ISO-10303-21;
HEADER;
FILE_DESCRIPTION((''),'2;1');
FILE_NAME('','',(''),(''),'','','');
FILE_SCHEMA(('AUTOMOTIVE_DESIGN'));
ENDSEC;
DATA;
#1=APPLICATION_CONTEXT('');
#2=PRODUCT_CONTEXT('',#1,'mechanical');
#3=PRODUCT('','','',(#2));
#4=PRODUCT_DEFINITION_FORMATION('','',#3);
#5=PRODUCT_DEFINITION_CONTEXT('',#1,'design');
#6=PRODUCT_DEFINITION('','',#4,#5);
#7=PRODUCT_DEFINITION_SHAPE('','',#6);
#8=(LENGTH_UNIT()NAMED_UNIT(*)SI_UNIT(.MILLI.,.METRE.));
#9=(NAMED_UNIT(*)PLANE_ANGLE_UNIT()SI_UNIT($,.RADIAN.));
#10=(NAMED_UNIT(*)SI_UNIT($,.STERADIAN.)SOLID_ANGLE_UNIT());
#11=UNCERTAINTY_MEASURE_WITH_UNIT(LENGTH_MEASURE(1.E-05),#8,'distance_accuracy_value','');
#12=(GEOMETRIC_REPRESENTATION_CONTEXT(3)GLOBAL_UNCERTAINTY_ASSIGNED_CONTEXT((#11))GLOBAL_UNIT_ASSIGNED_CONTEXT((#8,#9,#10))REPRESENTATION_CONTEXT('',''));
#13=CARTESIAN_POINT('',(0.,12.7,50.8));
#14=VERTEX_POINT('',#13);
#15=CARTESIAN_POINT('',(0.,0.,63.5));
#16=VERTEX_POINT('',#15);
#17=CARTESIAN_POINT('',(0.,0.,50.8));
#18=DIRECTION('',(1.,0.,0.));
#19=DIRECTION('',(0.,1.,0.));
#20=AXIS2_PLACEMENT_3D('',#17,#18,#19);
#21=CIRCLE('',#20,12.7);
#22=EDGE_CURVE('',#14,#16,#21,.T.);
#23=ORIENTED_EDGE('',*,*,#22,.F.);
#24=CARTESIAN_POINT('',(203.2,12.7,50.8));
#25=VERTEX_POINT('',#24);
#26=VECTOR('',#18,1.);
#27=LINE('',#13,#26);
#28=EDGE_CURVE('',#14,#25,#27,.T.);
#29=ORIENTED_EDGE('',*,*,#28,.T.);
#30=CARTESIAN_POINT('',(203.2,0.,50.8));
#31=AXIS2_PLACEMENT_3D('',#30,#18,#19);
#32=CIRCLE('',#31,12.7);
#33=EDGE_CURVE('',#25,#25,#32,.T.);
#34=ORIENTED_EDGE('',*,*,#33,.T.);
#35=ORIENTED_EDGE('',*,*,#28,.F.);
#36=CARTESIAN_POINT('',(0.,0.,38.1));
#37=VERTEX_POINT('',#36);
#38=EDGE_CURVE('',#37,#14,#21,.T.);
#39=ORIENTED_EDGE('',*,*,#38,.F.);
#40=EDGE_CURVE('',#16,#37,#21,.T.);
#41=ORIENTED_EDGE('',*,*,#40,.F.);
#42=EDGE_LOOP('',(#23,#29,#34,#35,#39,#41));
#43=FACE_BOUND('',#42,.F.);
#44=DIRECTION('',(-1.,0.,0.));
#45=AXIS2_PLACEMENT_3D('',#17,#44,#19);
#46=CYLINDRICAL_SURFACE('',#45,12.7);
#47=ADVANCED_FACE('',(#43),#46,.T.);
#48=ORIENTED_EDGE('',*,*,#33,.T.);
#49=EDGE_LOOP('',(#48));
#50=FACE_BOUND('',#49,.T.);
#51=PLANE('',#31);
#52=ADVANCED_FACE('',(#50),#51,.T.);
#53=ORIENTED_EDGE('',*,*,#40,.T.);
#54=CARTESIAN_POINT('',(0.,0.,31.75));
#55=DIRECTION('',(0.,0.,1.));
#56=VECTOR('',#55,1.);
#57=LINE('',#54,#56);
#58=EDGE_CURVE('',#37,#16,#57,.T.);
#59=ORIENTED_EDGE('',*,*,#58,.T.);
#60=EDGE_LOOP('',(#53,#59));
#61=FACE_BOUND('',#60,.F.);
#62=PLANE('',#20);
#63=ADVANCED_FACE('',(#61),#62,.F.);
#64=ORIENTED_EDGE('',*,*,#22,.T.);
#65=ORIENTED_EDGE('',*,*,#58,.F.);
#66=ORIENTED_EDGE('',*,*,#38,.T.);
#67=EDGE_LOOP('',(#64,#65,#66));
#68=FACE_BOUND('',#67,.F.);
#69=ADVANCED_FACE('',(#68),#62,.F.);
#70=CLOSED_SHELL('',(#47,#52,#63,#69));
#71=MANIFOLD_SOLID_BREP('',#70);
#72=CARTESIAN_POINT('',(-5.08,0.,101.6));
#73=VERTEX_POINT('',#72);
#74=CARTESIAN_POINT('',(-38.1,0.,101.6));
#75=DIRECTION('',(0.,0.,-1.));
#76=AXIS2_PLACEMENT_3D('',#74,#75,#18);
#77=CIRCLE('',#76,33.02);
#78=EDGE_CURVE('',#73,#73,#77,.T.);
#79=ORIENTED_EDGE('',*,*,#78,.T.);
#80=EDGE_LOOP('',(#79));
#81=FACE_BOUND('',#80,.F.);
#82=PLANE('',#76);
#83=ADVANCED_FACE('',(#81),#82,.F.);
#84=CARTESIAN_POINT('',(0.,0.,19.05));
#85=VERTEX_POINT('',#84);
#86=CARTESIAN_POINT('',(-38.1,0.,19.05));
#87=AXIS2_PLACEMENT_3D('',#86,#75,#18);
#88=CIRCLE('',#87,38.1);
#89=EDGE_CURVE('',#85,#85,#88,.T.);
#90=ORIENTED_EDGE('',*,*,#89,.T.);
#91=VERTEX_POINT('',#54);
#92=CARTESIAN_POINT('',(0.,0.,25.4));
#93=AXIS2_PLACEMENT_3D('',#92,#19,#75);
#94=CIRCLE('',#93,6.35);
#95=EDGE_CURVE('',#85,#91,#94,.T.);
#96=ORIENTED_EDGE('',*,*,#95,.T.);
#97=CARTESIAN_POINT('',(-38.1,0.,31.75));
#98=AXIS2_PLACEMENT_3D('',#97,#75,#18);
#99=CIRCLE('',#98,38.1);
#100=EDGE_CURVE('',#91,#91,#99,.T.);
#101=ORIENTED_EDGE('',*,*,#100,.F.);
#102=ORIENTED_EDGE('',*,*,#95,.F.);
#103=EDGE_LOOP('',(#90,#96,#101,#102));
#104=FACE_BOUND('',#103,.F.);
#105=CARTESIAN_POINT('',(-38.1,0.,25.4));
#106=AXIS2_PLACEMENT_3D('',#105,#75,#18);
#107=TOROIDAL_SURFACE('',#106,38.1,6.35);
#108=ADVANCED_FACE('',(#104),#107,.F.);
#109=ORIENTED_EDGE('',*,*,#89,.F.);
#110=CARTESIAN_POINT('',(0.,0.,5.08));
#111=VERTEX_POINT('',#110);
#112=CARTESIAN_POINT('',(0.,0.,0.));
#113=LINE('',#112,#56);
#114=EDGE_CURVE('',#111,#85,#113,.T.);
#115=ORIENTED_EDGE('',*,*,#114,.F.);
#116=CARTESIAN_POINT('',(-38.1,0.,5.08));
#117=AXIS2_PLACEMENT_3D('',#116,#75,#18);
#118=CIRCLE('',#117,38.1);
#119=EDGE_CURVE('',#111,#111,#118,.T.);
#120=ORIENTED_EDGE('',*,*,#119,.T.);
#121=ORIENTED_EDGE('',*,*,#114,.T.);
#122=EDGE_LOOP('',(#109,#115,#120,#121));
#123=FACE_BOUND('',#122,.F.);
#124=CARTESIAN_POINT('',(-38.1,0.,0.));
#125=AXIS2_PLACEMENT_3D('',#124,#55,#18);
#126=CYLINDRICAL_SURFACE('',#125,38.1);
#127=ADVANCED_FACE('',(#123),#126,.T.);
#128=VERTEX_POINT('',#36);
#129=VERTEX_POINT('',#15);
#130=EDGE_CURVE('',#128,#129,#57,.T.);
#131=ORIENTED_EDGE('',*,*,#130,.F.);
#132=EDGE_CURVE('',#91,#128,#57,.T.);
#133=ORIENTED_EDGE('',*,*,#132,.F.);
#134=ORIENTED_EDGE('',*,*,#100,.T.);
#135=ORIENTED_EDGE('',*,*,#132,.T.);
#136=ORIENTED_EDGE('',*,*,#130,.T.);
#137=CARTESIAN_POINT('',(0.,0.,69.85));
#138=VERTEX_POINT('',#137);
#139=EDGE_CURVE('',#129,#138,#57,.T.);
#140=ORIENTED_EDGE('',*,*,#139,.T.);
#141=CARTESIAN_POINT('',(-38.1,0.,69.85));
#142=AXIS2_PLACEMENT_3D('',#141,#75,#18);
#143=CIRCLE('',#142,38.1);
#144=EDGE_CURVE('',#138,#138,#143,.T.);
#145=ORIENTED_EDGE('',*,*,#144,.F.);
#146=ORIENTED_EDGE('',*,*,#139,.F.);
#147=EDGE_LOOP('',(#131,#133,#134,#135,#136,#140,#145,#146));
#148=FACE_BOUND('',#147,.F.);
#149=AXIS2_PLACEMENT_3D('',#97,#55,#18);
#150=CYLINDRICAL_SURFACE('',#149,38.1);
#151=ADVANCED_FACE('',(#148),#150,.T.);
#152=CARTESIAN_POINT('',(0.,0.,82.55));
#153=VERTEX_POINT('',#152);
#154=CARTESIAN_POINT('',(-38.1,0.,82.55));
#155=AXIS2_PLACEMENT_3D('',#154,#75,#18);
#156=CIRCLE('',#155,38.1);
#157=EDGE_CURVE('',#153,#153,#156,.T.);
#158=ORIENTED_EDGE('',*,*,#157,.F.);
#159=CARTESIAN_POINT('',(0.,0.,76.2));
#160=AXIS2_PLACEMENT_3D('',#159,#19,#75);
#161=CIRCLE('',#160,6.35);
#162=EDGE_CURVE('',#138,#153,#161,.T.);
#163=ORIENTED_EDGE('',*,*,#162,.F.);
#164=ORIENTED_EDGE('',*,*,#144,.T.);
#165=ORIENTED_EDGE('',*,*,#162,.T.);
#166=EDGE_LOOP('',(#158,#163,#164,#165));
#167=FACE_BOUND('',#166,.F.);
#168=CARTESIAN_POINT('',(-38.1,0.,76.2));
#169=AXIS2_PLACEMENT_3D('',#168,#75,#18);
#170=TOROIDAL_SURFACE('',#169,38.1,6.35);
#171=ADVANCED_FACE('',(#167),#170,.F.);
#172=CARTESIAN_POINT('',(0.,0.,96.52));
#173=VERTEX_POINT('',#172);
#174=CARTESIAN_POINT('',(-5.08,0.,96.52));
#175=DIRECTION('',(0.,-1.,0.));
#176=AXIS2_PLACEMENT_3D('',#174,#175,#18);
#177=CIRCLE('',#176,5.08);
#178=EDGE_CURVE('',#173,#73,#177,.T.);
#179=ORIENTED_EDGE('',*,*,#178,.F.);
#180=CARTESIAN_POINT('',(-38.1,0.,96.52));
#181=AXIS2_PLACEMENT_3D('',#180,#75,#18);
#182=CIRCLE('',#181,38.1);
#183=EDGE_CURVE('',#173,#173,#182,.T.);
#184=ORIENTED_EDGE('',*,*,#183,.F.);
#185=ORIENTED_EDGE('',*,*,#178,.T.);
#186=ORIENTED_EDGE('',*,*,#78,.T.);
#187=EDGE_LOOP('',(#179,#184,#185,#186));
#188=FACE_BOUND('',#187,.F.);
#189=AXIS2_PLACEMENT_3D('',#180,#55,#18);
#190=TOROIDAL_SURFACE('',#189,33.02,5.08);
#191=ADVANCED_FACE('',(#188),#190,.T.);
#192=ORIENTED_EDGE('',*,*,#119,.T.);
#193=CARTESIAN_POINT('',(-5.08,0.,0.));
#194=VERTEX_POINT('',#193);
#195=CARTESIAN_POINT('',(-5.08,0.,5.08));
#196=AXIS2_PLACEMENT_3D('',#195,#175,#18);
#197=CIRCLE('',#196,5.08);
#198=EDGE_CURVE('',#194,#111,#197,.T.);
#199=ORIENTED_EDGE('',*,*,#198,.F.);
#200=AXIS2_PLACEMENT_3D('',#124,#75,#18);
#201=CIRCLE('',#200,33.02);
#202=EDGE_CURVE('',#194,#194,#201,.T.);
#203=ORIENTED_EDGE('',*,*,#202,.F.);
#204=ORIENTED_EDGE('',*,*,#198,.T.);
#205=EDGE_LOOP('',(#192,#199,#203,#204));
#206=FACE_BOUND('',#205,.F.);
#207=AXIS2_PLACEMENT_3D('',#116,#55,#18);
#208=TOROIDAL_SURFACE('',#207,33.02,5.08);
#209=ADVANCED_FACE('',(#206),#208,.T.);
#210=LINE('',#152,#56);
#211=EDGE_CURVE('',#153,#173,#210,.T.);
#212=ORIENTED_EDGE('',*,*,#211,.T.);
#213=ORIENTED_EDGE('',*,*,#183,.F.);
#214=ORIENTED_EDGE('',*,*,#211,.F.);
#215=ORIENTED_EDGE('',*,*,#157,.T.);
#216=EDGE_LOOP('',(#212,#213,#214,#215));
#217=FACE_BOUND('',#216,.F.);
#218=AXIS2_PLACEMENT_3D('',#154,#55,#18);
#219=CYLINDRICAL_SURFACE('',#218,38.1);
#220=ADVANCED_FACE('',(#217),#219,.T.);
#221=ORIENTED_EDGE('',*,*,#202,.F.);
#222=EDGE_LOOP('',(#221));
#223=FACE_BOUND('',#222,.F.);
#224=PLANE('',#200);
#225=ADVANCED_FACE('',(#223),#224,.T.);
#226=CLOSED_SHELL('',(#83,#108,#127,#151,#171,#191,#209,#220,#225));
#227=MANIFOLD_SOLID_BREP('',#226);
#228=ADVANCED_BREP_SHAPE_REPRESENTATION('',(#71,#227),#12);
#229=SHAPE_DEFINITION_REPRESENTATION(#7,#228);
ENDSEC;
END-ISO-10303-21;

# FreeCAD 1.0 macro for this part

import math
import FreeCAD as App
import Part
import Sketcher
from FreeCAD import Vector
Q = App.Units.Quantity


def edges_at(feature, points):
    """Names of the edges that pass closest to the given points."""
    edges = feature.Shape.Edges
    near = lambda p: min(range(len(edges)), key=lambda i: edges[i].distToShape(Part.Vertex(*p))[0])
    return sorted({f"Edge{near(p) + 1}" for p in points})

doc = App.newDocument("Part")
body = doc.addObject("PartDesign::Body", "Body")
body.AllowCompound = True

# Sketch on XZ plane
sketch1 = body.newObject("Sketcher::SketchObject", "Sketch")
sketch1.AttachmentSupport = (doc.getObject("XZ_Plane"), [""])
sketch1.MapMode = "FlatFace"
sketch1.addGeometry(Part.LineSegment(Vector(-38, 0, 0), Vector(0, 0, 0)), False)
sketch1.addGeometry(Part.LineSegment(Vector(0, 0, 0), Vector(0, 19, 0)), False)
sketch1.addGeometry(Part.ArcOfCircle(Part.Circle(Vector(0, 25, 0), Vector(0, 0, 1), 6), math.radians(90), math.radians(270)), False)
sketch1.addGeometry(Part.LineSegment(Vector(0, 32, 0), Vector(0, 70, 0)), False)
sketch1.addGeometry(Part.ArcOfCircle(Part.Circle(Vector(0, 76, 0), Vector(0, 0, 1), 6), math.radians(90), math.radians(270)), False)
sketch1.addGeometry(Part.LineSegment(Vector(0, 83, 0), Vector(0, 102, 0)), False)
sketch1.addGeometry(Part.LineSegment(Vector(0, 102, 0), Vector(-38, 102, 0)), False)
sketch1.addGeometry(Part.LineSegment(Vector(-38, 102, 0), Vector(-38, 0, 0)), False)
sketch1.addGeometry(Part.LineSegment(Vector(-38, 102, 0), Vector(-38, 0, 0)), True)  # axis
sketch1.addConstraint(Sketcher.Constraint("Coincident", 0, 2, 1, 1))
sketch1.addConstraint(Sketcher.Constraint("Coincident", 1, 2, 2, 2))
sketch1.addConstraint(Sketcher.Constraint("Coincident", 2, 1, 3, 1))
sketch1.addConstraint(Sketcher.Constraint("Coincident", 3, 2, 4, 2))
sketch1.addConstraint(Sketcher.Constraint("Coincident", 4, 1, 5, 1))
sketch1.addConstraint(Sketcher.Constraint("Coincident", 5, 2, 6, 1))
sketch1.addConstraint(Sketcher.Constraint("Coincident", 6, 2, 7, 1))
sketch1.addConstraint(Sketcher.Constraint("Coincident", 7, 2, 0, 1))
sketch1.addConstraint(Sketcher.Constraint("Horizontal", 0))
sketch1.addConstraint(Sketcher.Constraint("Vertical", 1))
sketch1.addConstraint(Sketcher.Constraint("Vertical", 3))
sketch1.addConstraint(Sketcher.Constraint("Vertical", 5))
sketch1.addConstraint(Sketcher.Constraint("Horizontal", 6))
sketch1.addConstraint(Sketcher.Constraint("Vertical", 7))
sketch1.addConstraint(Sketcher.Constraint("Vertical", 8))
sketch1.addConstraint(Sketcher.Constraint("Coincident", 0, 2, -1, 1))
sketch1.addConstraint(Sketcher.Constraint("Coincident", 8, 1, 6, 2))
sketch1.addConstraint(Sketcher.Constraint("Equal", 2, 4))
sketch1.addConstraint(Sketcher.Constraint("PointOnObject", 2, 3, -2))
sketch1.addConstraint(Sketcher.Constraint("PointOnObject", 4, 3, -2))
sketch1.addConstraint(Sketcher.Constraint("PointOnObject", 2, 1, -2))
sketch1.addConstraint(Sketcher.Constraint("PointOnObject", 4, 1, -2))
sketch1.addConstraint(Sketcher.Constraint("PointOnObject", 8, 2, -1))
sketch1.addConstraint(Sketcher.Constraint("Equal", 6, 3))
sketch1.addConstraint(Sketcher.Constraint("Equal", 1, 5))
sketch1.addConstraint(Sketcher.Constraint("DistanceY", 7, 2, 7, 1, Q("4 in")))
sketch1.addConstraint(Sketcher.Constraint("Radius", 2, Q("0.25 in")))
sketch1.addConstraint(Sketcher.Constraint("DistanceX", 0, 1, 0, 2, Q("1.5 in")))
revolution = body.newObject("PartDesign::Revolution", "Revolution")
revolution.Profile = sketch1
revolution.ReferenceAxis = (sketch1, ["Axis0"])
revolution.Angle = 360
doc.recompute()

fillet = body.newObject("PartDesign::Fillet", "Fillet")
fillet.Base = (revolution, edges_at(revolution, [(-76.2, 0, 101.6), (-76.2, 0, 0)]))
fillet.Radius = Q("0.2 in")

# Sketch on YZ plane
sketch2 = body.newObject("Sketcher::SketchObject", "Sketch001")
sketch2.AttachmentSupport = (doc.getObject("YZ_Plane"), [""])
sketch2.MapMode = "FlatFace"
sketch2.addGeometry(Part.Circle(Vector(0, 51, 0), Vector(0, 0, 1), 13), False)
sketch2.addConstraint(Sketcher.Constraint("PointOnObject", 0, 3, -2))
sketch2.addConstraint(Sketcher.Constraint("Diameter", 0, Q("1 in")))
sketch2.addConstraint(Sketcher.Constraint("DistanceY", -1, 1, 0, 3, Q("2 in")))
pad1 = body.newObject("PartDesign::Pad", "Pad")
pad1.Profile = sketch2
pad1.Length = Q("8 in")

doc.recompute()
